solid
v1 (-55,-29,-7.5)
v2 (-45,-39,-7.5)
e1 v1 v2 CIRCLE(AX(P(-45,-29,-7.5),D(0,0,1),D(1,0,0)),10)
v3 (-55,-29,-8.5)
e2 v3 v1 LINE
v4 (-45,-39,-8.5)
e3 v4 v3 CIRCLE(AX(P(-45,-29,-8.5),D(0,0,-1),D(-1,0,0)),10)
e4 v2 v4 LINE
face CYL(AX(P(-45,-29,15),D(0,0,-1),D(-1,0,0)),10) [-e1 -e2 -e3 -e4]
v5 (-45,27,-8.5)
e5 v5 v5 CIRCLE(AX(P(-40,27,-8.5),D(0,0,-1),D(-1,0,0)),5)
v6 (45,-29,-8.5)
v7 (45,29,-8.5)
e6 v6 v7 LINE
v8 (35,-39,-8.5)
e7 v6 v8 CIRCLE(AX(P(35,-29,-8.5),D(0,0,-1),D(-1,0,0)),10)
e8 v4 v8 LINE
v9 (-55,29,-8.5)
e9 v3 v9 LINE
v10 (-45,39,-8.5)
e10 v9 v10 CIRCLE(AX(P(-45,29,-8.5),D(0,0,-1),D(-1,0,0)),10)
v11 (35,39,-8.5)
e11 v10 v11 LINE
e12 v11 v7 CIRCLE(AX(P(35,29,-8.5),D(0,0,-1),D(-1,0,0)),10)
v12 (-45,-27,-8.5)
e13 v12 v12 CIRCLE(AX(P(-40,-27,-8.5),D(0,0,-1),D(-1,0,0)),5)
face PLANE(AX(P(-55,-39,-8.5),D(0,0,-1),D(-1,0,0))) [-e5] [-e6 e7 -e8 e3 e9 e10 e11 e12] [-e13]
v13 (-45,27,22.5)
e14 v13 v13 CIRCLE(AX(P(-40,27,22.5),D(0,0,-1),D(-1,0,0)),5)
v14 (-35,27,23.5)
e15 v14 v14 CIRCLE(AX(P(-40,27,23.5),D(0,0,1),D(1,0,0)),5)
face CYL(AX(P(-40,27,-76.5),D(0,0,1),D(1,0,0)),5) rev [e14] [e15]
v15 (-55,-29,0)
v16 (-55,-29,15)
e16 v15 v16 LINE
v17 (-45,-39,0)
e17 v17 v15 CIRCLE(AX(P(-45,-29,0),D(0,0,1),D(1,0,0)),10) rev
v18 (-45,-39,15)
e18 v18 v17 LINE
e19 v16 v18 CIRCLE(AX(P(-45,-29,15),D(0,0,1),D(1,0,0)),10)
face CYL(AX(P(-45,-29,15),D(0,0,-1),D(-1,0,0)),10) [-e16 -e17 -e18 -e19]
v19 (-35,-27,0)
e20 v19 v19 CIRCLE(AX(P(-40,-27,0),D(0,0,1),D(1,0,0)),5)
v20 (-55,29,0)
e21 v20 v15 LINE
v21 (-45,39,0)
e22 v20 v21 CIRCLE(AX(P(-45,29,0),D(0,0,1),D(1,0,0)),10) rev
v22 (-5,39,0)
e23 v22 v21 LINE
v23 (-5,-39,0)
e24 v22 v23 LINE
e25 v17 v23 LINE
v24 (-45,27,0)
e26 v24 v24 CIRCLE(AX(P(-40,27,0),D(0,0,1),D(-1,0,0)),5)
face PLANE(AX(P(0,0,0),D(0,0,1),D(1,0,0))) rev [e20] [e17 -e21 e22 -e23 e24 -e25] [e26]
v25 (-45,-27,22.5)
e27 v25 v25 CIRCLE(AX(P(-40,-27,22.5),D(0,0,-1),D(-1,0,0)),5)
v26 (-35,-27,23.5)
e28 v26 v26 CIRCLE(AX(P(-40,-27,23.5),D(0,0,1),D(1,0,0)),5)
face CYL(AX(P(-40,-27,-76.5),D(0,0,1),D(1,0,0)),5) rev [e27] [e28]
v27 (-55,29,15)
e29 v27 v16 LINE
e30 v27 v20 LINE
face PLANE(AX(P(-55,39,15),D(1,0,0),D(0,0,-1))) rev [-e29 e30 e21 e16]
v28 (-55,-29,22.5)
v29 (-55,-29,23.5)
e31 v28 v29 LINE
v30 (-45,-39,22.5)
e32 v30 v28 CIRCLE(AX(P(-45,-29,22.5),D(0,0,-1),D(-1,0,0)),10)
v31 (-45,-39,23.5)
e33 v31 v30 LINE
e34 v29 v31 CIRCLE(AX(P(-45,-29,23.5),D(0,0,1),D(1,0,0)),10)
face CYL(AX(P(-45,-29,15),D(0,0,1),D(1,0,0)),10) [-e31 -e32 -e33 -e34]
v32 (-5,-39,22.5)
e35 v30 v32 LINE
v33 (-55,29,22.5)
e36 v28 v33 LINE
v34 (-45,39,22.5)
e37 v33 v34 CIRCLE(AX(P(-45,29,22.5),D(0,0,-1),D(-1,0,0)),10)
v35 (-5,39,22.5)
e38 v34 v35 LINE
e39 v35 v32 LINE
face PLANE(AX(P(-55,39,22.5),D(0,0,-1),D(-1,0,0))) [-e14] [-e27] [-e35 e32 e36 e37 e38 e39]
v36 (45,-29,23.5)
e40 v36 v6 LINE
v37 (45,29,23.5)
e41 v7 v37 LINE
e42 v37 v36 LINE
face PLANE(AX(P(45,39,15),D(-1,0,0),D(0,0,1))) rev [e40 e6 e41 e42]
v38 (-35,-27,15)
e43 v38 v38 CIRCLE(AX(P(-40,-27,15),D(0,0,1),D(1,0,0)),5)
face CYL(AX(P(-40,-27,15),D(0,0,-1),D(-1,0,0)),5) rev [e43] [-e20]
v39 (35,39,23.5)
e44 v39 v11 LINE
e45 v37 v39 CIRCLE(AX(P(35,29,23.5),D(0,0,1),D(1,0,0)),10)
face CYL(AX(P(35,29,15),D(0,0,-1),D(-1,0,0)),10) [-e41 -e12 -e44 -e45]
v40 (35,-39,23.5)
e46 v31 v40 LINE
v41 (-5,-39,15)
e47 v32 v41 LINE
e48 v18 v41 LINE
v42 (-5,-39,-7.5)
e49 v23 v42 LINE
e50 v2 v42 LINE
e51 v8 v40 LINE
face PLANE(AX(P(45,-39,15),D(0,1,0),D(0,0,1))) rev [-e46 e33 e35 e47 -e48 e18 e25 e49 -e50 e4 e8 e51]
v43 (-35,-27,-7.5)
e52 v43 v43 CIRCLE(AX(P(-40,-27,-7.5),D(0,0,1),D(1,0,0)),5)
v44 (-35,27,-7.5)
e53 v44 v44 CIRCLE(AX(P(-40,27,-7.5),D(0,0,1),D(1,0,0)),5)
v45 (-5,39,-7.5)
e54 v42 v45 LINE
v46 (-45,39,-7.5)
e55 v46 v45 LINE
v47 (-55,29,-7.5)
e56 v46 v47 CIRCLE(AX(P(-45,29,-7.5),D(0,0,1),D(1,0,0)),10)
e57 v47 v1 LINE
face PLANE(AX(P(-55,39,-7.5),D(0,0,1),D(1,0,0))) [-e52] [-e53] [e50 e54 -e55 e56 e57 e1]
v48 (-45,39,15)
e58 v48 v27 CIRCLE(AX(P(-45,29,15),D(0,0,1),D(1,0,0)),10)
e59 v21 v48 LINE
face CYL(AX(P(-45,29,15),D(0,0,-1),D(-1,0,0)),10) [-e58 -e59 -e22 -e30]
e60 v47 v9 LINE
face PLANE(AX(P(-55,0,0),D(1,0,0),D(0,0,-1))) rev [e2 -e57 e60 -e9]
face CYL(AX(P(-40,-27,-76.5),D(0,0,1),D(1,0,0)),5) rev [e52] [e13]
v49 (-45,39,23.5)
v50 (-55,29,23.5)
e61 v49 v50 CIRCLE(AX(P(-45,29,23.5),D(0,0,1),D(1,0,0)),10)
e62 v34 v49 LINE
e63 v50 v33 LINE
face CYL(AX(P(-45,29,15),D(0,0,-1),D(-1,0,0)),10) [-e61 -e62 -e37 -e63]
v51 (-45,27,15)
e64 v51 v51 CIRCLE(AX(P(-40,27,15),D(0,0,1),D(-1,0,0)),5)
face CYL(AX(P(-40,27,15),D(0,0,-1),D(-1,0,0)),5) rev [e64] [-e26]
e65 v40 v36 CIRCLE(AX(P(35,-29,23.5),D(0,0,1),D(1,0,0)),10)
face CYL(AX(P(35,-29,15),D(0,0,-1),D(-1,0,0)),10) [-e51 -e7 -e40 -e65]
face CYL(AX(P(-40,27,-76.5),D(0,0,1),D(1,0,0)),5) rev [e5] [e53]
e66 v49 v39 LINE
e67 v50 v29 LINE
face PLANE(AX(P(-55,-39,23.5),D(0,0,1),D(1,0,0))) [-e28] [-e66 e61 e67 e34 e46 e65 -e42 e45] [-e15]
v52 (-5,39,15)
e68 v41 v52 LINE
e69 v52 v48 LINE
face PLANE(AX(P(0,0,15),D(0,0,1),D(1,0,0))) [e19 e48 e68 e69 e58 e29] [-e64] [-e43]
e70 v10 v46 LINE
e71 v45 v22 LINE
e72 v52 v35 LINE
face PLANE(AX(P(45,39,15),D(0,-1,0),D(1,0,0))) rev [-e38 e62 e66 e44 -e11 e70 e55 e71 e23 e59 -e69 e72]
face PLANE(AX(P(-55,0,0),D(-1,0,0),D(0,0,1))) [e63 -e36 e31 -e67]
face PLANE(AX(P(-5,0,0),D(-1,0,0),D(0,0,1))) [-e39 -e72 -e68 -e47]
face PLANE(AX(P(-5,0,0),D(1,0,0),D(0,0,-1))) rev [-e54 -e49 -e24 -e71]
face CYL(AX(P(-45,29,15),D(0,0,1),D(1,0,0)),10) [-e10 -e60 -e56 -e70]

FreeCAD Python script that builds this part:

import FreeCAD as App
import Part
import Sketcher
from FreeCAD import Vector
Q = App.Units.Quantity


def edges_at(feature, points):
    """Names of the edges that pass closest to the given points."""
    edges = feature.Shape.Edges
    near = lambda p: min(range(len(edges)), key=lambda i: edges[i].distToShape(Part.Vertex(*p))[0])
    return sorted({f"Edge{near(p) + 1}" for p in points})

doc = App.newDocument("Part")
params = doc.addObject("Spreadsheet::Sheet", "Params")
for row, (alias, value) in enumerate([
    ("sketch1_diameter", "10 mm"),
    ("sketch1_width", "100 mm"),
    ("sketch1_height", "78 mm"),
    ("pad1_length", "15 mm"),
    ("fillet_radius", "10 mm"),
    ("sketch2_width", "78 mm"),
    ("sketch2_height", "7.5 mm"),
    ("pad2_length", "50 mm"),
    ("sketch3_width", "78 mm"),
    ("sketch3_height", "1 mm"),
    ("pad3_length", "100 mm"),
    ("fillet2_radius", "10 mm"),
    ("fillet3_radius", "10 mm"),
    ("sketch4_diameter", "10 mm"),
    ("pocket1_length", "100 mm"),
], start=1):
    params.set(f"A{row}", alias)
    params.set(f"B{row}", "=" + value)
    params.setAlias(f"B{row}", alias)

body = doc.addObject("PartDesign::Body", "Body")

# Sketch on XY plane
sketch1 = body.newObject("Sketcher::SketchObject", "Sketch")
sketch1.AttachmentSupport = (doc.getObject("XY_Plane"), [""])
sketch1.MapMode = "FlatFace"
sketch1.addGeometry([
    Part.LineSegment(Vector(-55, -39, 0), Vector(45, -39, 0)),  # 0
    Part.LineSegment(Vector(45, -39, 0), Vector(45, 39, 0)),  # 1
    Part.LineSegment(Vector(45, 39, 0), Vector(-55, 39, 0)),  # 2
    Part.LineSegment(Vector(-55, 39, 0), Vector(-55, -39, 0)),  # 3
    Part.Circle(Vector(-40, -27, 0), Vector(0, 0, 1), 5),  # 4
    Part.Circle(Vector(-40, 27, 0), Vector(0, 0, 1), 5),  # 5
], False)
sketch1.addConstraint([
    Sketcher.Constraint("Coincident", 0, 2, 1, 1),
    Sketcher.Constraint("Coincident", 1, 2, 2, 1),
    Sketcher.Constraint("Coincident", 2, 2, 3, 1),
    Sketcher.Constraint("Coincident", 3, 2, 0, 1),
    Sketcher.Constraint("Horizontal", 0),
    Sketcher.Constraint("Vertical", 1),
    Sketcher.Constraint("Horizontal", 2),
    Sketcher.Constraint("Vertical", 3),
    Sketcher.Constraint("Equal", 4, 5),
    Sketcher.Constraint("Symmetric", 4, 3, 5, 3, -1),
    Sketcher.Constraint("Diameter", 4, Q("10 mm")),
    Sketcher.Constraint("DistanceX", 0, 1, 0, 2, Q("100 mm")),
    Sketcher.Constraint("DistanceY", 1, 1, 1, 2, Q("78 mm")),
    Sketcher.Constraint("DistanceX", 4, 3, -1, 1, Q("40 mm")),
    Sketcher.Constraint("DistanceY", 4, 3, -1, 1, Q("27 mm")),
    Sketcher.Constraint("DistanceX", -1, 1, 0, 2, Q("45 mm")),
    Sketcher.Constraint("DistanceY", 0, 2, -1, 1, Q("39 mm")),
])
sketch1.setExpression("Constraints[10]", "Params.sketch1_diameter")
sketch1.setExpression("Constraints[11]", "Params.sketch1_width")
sketch1.setExpression("Constraints[12]", "Params.sketch1_height")
pad1 = body.newObject("PartDesign::Pad", "Pad")
pad1.Profile = sketch1
pad1.setExpression("Length", "Params.pad1_length")
doc.recompute()

fillet = body.newObject("PartDesign::Fillet", "Fillet")
fillet.Base = (pad1, edges_at(pad1, [(-55, -39, 7.5), (-55, 39, 7.5)]))
fillet.setExpression("Radius", "Params.fillet_radius")

# Sketch on YZ plane
sketch2 = body.newObject("Sketcher::SketchObject", "Sketch001")
sketch2.AttachmentSupport = (doc.getObject("YZ_Plane"), [""])
sketch2.MapMode = "FlatFace"
sketch2.AttachmentOffset = App.Placement(Vector(0, 0, 45), App.Rotation())
sketch2.addGeometry([
    Part.LineSegment(Vector(-39, 22, 0), Vector(-39, 15, 0)),  # 0
    Part.LineSegment(Vector(-39, 15, 0), Vector(39, 15, 0)),  # 1
    Part.LineSegment(Vector(39, 15, 0), Vector(39, 22, 0)),  # 2
    Part.LineSegment(Vector(39, 22, 0), Vector(-39, 22, 0)),  # 3
    Part.LineSegment(Vector(-39, 0, 0), Vector(-39, -8, 0)),  # 4
    Part.LineSegment(Vector(-39, -8, 0), Vector(39, -8, 0)),  # 5
    Part.LineSegment(Vector(39, -8, 0), Vector(39, 0, 0)),  # 6
    Part.LineSegment(Vector(39, 0, 0), Vector(-39, 0, 0)),  # 7
], False)
sketch2.addConstraint([
    Sketcher.Constraint("Coincident", 0, 2, 1, 1),
    Sketcher.Constraint("Coincident", 1, 2, 2, 1),
    Sketcher.Constraint("Coincident", 2, 2, 3, 1),
    Sketcher.Constraint("Coincident", 3, 2, 0, 1),
    Sketcher.Constraint("Coincident", 4, 2, 5, 1),
    Sketcher.Constraint("Coincident", 5, 2, 6, 1),
    Sketcher.Constraint("Coincident", 6, 2, 7, 1),
    Sketcher.Constraint("Coincident", 7, 2, 4, 1),
    Sketcher.Constraint("Vertical", 0),
    Sketcher.Constraint("Horizontal", 1),
    Sketcher.Constraint("Vertical", 2),
    Sketcher.Constraint("Horizontal", 3),
    Sketcher.Constraint("Vertical", 4),
    Sketcher.Constraint("Horizontal", 5),
    Sketcher.Constraint("Vertical", 6),
    Sketcher.Constraint("Horizontal", 7),
    Sketcher.Constraint("Symmetric", 6, 2, 7, 2, -1, 1),
    Sketcher.Constraint("Vertical", 3, 2, 4, 2),
    Sketcher.Constraint("Vertical", 2, 2, 5, 2),
    Sketcher.Constraint("Equal", 2, 4),
    Sketcher.Constraint("DistanceX", 1, 1, 1, 2, Q("78 mm")),
    Sketcher.Constraint("DistanceY", 0, 2, 0, 1, Q("7.5 mm")),
    Sketcher.Constraint("DistanceY", -1, 1, 0, 2, Q("15 mm")),
])
sketch2.setExpression("Constraints[20]", "Params.sketch2_width")
sketch2.setExpression("Constraints[21]", "Params.sketch2_height")
pad2 = body.newObject("PartDesign::Pad", "Pad001")
pad2.Profile = sketch2
pad2.setExpression("Length", "Params.pad2_length")
pad2.Reversed = True

# Sketch on YZ plane
sketch3 = body.newObject("Sketcher::SketchObject", "Sketch002")
sketch3.AttachmentSupport = (doc.getObject("YZ_Plane"), [""])
sketch3.MapMode = "FlatFace"
sketch3.AttachmentOffset = App.Placement(Vector(0, 0, 45), App.Rotation())
sketch3.addGeometry([
    Part.LineSegment(Vector(-39, 23.5, 0), Vector(-39, 22.5, 0)),  # 0
    Part.LineSegment(Vector(-39, 22.5, 0), Vector(39, 22.5, 0)),  # 1
    Part.LineSegment(Vector(39, 22.5, 0), Vector(39, 23.5, 0)),  # 2
    Part.LineSegment(Vector(39, 23.5, 0), Vector(-39, 23.5, 0)),  # 3
    Part.LineSegment(Vector(-39, -7.5, 0), Vector(-39, -8.5, 0)),  # 4
    Part.LineSegment(Vector(-39, -8.5, 0), Vector(39, -8.5, 0)),  # 5
    Part.LineSegment(Vector(39, -8.5, 0), Vector(39, -7.5, 0)),  # 6
    Part.LineSegment(Vector(39, -7.5, 0), Vector(-39, -7.5, 0)),  # 7
], False)
sketch3.addConstraint([
    Sketcher.Constraint("Coincident", 0, 2, 1, 1),
    Sketcher.Constraint("Coincident", 1, 2, 2, 1),
    Sketcher.Constraint("Coincident", 2, 2, 3, 1),
    Sketcher.Constraint("Coincident", 3, 2, 0, 1),
    Sketcher.Constraint("Coincident", 4, 2, 5, 1),
    Sketcher.Constraint("Coincident", 5, 2, 6, 1),
    Sketcher.Constraint("Coincident", 6, 2, 7, 1),
    Sketcher.Constraint("Coincident", 7, 2, 4, 1),
    Sketcher.Constraint("Vertical", 0),
    Sketcher.Constraint("Horizontal", 1),
    Sketcher.Constraint("Vertical", 2),
    Sketcher.Constraint("Horizontal", 3),
    Sketcher.Constraint("Vertical", 4),
    Sketcher.Constraint("Horizontal", 5),
    Sketcher.Constraint("Vertical", 6),
    Sketcher.Constraint("Horizontal", 7),
    Sketcher.Constraint("Vertical", 3, 2, 4, 2),
    Sketcher.Constraint("Vertical", 2, 2, 5, 2),
    Sketcher.Constraint("Equal", 2, 4),
    Sketcher.Constraint("DistanceX", 1, 1, 1, 2, Q("78 mm")),
    Sketcher.Constraint("DistanceY", 0, 2, 0, 1, Q("1 mm")),
    Sketcher.Constraint("DistanceX", 0, 2, -1, 1, Q("39 mm")),
    Sketcher.Constraint("DistanceY", 4, 2, 0, 2, Q("31 mm")),
    Sketcher.Constraint("DistanceY", -1, 1, 0, 2, Q("22.5 mm")),
])
sketch3.setExpression("Constraints[19]", "Params.sketch3_width")
sketch3.setExpression("Constraints[20]", "Params.sketch3_height")
pad3 = body.newObject("PartDesign::Pad", "Pad002")
pad3.Profile = sketch3
pad3.setExpression("Length", "Params.pad3_length")
pad3.Reversed = True
doc.recompute()

fillet2 = body.newObject("PartDesign::Fillet", "Fillet001")
fillet2.Base = (pad3, edges_at(pad3, [
    (-55, 39, -8),
    (-55, -39, -8),
    (45, 39, 7.5),
    (45, -39, 7.5),
]))
fillet2.setExpression("Radius", "Params.fillet2_radius")
doc.recompute()

fillet3 = body.newObject("PartDesign::Fillet", "Fillet002")
fillet3.Base = (fillet2, edges_at(fillet2, [(-55, -39, 23), (-55, 39, 23)]))
fillet3.setExpression("Radius", "Params.fillet3_radius")

# Sketch on XY plane
sketch4 = body.newObject("Sketcher::SketchObject", "Sketch003")
sketch4.AttachmentSupport = (doc.getObject("XY_Plane"), [""])
sketch4.MapMode = "FlatFace"
sketch4.AttachmentOffset = App.Placement(Vector(0, 0, -76.5), App.Rotation())
sketch4.addGeometry([
    Part.Circle(Vector(-40, 27, 0), Vector(0, 0, 1), 5),
    Part.Circle(Vector(-40, -27, 0), Vector(0, 0, 1), 5),
], False)
sketch4.addConstraint([
    Sketcher.Constraint("Equal", 0, 1),
    Sketcher.Constraint("Symmetric", 0, 3, 1, 3, -1),
    Sketcher.Constraint("Diameter", 0, Q("10 mm")),
    Sketcher.Constraint("DistanceX", 0, 3, -1, 1, Q("40 mm")),
    Sketcher.Constraint("DistanceY", -1, 1, 0, 3, Q("27 mm")),
])
sketch4.setExpression("Constraints[2]", "Params.sketch4_diameter")
pocket1 = body.newObject("PartDesign::Pocket", "Pocket")
pocket1.Profile = sketch4
pocket1.setExpression("Length", "Params.pocket1_length")
pocket1.Reversed = True

doc.recompute()
